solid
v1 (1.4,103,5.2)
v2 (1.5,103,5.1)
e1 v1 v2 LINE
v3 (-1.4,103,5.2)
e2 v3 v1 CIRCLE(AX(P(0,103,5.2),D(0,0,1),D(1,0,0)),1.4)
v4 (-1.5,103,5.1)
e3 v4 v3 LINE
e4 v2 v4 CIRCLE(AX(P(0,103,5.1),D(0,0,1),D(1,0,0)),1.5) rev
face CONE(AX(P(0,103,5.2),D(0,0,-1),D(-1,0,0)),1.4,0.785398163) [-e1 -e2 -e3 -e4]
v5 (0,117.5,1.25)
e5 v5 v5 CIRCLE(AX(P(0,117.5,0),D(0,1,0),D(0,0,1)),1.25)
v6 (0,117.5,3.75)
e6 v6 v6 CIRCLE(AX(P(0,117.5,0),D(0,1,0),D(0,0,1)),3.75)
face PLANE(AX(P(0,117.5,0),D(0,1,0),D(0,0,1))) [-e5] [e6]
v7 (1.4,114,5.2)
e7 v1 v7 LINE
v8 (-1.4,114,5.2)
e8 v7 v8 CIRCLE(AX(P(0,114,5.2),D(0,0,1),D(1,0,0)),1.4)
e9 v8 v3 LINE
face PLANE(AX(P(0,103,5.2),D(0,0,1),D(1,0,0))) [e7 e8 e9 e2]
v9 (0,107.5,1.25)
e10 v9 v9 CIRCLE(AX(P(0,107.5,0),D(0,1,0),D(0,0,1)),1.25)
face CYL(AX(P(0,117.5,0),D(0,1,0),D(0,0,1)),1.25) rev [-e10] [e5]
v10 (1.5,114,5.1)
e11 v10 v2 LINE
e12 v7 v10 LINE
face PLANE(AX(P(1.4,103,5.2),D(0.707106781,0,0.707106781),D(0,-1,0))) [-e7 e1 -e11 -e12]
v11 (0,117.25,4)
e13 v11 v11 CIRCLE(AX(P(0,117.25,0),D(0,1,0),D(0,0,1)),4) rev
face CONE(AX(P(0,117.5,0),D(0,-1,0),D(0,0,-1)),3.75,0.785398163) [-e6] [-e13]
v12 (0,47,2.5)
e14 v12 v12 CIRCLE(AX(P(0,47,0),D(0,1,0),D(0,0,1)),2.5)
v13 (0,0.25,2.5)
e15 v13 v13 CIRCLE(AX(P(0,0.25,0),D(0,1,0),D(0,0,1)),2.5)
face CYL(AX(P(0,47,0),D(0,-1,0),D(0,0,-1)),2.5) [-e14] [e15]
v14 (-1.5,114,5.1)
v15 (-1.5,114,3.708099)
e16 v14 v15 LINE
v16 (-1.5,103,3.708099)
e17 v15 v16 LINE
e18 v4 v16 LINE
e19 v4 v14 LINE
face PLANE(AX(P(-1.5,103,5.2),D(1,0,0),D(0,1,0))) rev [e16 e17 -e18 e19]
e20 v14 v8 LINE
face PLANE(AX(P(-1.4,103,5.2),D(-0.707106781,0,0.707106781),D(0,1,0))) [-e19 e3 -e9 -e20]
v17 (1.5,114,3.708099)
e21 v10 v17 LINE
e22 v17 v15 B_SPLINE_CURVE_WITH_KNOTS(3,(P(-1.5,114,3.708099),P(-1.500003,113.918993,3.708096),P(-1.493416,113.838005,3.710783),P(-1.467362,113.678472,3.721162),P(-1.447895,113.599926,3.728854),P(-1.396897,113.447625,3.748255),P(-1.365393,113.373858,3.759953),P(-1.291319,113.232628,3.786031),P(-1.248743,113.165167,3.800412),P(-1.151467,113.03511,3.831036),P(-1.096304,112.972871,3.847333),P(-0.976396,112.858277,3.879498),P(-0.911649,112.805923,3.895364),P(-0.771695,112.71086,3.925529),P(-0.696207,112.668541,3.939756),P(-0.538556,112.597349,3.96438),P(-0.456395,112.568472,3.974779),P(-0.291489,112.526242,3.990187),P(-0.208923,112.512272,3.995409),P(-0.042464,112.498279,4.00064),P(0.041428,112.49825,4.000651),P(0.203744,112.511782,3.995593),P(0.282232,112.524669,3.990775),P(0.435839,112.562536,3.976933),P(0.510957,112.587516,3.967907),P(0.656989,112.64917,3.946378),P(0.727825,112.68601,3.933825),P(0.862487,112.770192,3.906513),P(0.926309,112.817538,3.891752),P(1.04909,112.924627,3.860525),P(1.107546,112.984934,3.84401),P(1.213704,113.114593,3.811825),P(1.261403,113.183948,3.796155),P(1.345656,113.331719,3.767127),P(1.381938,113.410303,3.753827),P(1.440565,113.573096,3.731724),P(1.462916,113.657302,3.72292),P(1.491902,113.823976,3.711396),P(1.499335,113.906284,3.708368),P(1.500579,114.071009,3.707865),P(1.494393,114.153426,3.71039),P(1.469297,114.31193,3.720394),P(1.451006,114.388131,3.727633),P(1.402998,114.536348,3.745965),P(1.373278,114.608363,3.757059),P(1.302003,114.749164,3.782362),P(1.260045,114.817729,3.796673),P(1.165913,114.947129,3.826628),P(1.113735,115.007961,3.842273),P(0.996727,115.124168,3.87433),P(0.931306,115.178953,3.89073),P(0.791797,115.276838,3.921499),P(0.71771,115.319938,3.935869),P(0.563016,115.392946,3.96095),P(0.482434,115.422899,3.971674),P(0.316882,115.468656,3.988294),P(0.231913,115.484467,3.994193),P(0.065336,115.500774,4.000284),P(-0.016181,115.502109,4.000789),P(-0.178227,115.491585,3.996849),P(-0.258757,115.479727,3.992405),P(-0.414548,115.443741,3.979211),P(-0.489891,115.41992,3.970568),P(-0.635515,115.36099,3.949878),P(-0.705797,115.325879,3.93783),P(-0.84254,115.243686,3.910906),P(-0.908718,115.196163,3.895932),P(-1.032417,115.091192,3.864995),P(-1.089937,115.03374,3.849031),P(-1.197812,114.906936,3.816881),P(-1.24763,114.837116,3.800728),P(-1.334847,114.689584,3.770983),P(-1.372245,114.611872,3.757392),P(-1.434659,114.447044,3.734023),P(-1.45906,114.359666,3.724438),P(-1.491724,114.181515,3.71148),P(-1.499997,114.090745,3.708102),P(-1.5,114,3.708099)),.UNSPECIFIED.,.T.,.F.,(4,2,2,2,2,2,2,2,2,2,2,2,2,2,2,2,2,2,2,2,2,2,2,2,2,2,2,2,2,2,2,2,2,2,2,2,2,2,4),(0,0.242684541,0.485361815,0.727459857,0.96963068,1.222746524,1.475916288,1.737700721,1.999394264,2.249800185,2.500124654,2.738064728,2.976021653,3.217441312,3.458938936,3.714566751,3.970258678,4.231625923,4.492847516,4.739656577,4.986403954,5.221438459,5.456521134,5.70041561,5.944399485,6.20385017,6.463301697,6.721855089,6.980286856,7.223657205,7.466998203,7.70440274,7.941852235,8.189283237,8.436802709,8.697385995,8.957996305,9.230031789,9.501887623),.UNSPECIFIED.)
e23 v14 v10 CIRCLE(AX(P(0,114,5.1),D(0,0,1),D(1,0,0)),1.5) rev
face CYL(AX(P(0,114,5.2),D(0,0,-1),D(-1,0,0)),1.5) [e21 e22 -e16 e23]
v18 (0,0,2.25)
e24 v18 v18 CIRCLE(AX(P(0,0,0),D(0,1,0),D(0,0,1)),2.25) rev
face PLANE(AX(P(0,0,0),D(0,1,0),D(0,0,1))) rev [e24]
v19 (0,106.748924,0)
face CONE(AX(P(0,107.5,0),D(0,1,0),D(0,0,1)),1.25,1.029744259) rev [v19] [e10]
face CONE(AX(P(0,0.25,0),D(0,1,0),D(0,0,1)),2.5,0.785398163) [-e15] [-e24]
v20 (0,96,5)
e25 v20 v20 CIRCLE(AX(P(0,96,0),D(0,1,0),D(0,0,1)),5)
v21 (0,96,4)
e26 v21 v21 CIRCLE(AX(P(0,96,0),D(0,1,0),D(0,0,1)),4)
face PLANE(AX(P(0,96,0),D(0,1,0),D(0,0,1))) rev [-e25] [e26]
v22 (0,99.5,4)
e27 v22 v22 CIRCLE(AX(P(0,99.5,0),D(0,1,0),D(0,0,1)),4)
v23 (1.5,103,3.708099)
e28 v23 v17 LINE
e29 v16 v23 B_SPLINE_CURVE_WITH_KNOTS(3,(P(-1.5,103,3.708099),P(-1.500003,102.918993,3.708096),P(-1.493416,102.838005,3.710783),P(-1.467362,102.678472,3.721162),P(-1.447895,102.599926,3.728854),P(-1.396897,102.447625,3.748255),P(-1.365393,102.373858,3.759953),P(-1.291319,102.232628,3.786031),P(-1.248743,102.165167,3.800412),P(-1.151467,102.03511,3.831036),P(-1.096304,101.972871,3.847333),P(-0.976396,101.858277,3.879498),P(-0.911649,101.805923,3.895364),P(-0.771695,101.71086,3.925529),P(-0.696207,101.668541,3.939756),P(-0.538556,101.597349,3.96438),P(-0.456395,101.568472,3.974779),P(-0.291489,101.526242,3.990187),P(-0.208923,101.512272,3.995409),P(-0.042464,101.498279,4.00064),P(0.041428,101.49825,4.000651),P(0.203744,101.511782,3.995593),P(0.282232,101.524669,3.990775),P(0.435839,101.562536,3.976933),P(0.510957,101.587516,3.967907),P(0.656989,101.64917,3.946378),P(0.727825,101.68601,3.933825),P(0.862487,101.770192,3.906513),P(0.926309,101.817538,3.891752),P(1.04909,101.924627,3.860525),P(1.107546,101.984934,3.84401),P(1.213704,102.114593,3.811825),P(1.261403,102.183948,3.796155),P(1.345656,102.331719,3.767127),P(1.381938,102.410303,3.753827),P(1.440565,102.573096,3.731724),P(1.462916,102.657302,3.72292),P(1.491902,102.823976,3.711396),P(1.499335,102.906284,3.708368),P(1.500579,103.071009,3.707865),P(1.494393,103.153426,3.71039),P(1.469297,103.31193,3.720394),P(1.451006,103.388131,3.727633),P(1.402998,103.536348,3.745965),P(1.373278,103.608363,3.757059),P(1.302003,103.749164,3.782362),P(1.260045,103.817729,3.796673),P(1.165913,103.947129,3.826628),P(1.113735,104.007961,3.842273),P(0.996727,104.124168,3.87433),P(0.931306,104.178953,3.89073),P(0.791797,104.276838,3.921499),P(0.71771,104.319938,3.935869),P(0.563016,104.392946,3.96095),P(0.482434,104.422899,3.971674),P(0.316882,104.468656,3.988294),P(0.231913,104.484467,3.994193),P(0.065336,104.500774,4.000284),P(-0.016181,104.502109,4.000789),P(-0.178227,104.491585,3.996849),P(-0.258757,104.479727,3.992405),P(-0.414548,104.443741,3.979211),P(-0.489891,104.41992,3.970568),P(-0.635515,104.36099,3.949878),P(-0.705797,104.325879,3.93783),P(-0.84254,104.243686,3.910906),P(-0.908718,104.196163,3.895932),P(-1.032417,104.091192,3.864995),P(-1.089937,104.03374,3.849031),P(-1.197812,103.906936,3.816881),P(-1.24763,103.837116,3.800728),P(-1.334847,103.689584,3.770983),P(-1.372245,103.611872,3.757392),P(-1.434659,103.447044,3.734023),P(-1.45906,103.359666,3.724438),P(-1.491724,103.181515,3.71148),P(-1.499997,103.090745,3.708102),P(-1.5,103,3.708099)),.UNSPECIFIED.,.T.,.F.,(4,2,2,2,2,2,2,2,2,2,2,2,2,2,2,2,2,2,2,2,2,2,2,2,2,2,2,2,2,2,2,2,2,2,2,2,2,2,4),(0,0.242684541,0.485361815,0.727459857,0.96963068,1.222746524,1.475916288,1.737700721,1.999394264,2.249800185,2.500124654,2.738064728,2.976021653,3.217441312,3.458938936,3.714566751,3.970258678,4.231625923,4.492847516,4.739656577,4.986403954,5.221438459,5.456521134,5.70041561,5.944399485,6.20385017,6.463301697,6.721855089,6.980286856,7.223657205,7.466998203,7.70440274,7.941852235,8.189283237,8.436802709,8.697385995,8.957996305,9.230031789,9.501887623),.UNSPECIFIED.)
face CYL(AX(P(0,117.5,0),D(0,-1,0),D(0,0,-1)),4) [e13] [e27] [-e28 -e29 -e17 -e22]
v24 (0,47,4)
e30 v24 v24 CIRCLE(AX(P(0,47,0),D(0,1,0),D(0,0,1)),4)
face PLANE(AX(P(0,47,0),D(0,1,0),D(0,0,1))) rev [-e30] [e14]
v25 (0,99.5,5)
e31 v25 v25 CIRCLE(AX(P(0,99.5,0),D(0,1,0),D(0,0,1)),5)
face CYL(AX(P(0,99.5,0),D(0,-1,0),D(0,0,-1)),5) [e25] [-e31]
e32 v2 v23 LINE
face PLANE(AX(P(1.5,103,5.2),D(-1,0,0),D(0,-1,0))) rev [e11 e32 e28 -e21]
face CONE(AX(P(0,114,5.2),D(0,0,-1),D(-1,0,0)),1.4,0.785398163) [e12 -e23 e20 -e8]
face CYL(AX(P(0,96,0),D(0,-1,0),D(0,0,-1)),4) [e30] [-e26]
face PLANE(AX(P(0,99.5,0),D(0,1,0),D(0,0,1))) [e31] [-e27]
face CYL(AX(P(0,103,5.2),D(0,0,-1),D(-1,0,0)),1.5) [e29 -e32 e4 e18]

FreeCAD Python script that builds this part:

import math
import FreeCAD as App
import Part
import Sketcher
Q = App.Units.Quantity


def edges_at(feature, points):
    """Names of the edges that pass closest to the given points."""
    edges = feature.Shape.Edges
    near = lambda p: min(range(len(edges)), key=lambda i: edges[i].distToShape(Part.Vertex(*p))[0])
    return sorted({f"Edge{near(p) + 1}" for p in points})


def add_polygon(sketch, points):
    """Adds a closed chain of lines whose ends are joined by coincident constraints."""
    first, n = sketch.GeometryCount, len(points)
    for a, b in zip(points, points[1:] + points[:1]):
        sketch.addGeometry(Part.LineSegment(App.Vector(*a, 0), App.Vector(*b, 0)), False)
    for i in range(n):
        sketch.addConstraint(Sketcher.Constraint("Coincident", first + i, 2, first + (i + 1) % n, 1))

doc = App.newDocument("Part")
body = doc.addObject("PartDesign::Body", "Body")

sketch1 = doc.addObject("Sketcher::SketchObject", "Sketch")
body.addObject(sketch1)
sketch1.AttachmentSupport = (doc.XZ_Plane, [""])
sketch1.MapMode = "FlatFace"
sketch1.addGeometry(Part.Circle(App.Vector(0, 0, 0), App.Vector(0, 0, 1), 2.5), False)
sketch1.addConstraint(Sketcher.Constraint("Coincident", 0, 3, -1, 1))
sketch1.addConstraint(Sketcher.Constraint("Diameter", 0, Q("5 mm")))
pad1 = doc.addObject("PartDesign::Pad", "Pad")
body.addObject(pad1)
pad1.Profile = sketch1
pad1.Length = 47
pad1.Reversed = True

sketch2 = doc.addObject("Sketcher::SketchObject", "Sketch001")
body.addObject(sketch2)
sketch2.AttachmentSupport = (doc.XZ_Plane, [""])
sketch2.MapMode = "FlatFace"
sketch2.AttachmentOffset = App.Placement(App.Vector(0, 0, -47), App.Rotation())
sketch2.addGeometry(Part.Circle(App.Vector(0, 0, 0), App.Vector(0, 0, 1), 4), False)
sketch2.addConstraint(Sketcher.Constraint("Coincident", 0, 3, -1, 1))
sketch2.addConstraint(Sketcher.Constraint("Diameter", 0, Q("8 mm")))
pad2 = doc.addObject("PartDesign::Pad", "Pad001")
body.addObject(pad2)
pad2.Profile = sketch2
pad2.Length = 49
pad2.Reversed = True

sketch3 = doc.addObject("Sketcher::SketchObject", "Sketch002")
body.addObject(sketch3)
sketch3.AttachmentSupport = (doc.XZ_Plane, [""])
sketch3.MapMode = "FlatFace"
sketch3.AttachmentOffset = App.Placement(App.Vector(0, 0, -96), App.Rotation())
sketch3.addGeometry(Part.Circle(App.Vector(0, 0, 0), App.Vector(0, 0, 1), 5), False)
sketch3.addConstraint(Sketcher.Constraint("Coincident", 0, 3, -1, 1))
sketch3.addConstraint(Sketcher.Constraint("Diameter", 0, Q("10 mm")))
pad3 = doc.addObject("PartDesign::Pad", "Pad002")
body.addObject(pad3)
pad3.Profile = sketch3
pad3.Length = 3.5
pad3.Reversed = True

sketch4 = doc.addObject("Sketcher::SketchObject", "Sketch003")
body.addObject(sketch4)
sketch4.AttachmentSupport = (doc.XZ_Plane, [""])
sketch4.MapMode = "FlatFace"
sketch4.AttachmentOffset = App.Placement(App.Vector(0, 0, -99.5), App.Rotation())
sketch4.addGeometry(Part.Circle(App.Vector(0, 0, 0), App.Vector(0, 0, 1), 4), False)
sketch4.addConstraint(Sketcher.Constraint("Coincident", 0, 3, -1, 1))
sketch4.addConstraint(Sketcher.Constraint("Diameter", 0, Q("8 mm")))
pad4 = doc.addObject("PartDesign::Pad", "Pad003")
body.addObject(pad4)
pad4.Profile = sketch4
pad4.Length = 18
pad4.Reversed = True

sketch5 = doc.addObject("Sketcher::SketchObject", "Sketch004")
body.addObject(sketch5)
sketch5.AttachmentSupport = (doc.YZ_Plane, [""])
sketch5.MapMode = "FlatFace"
add_polygon(sketch5, [(106.7, 0), (117.5, 0), (117.5, 1.2), (107.5, 1.2)])
sketch5.addConstraint(Sketcher.Constraint("Horizontal", 0))
sketch5.addConstraint(Sketcher.Constraint("Vertical", 1))
sketch5.addConstraint(Sketcher.Constraint("Horizontal", 2))
sketch5.addConstraint(Sketcher.Constraint("PointOnObject", 0, 2, -1))
sketch5.addConstraint(Sketcher.Constraint("DistanceX", 2, 2, 2, 1, Q("10 mm")))
sketch5.addConstraint(Sketcher.Constraint("Angle", 3, Q("-121 deg")))
sketch5.addConstraint(Sketcher.Constraint("DistanceY", 1, 1, 1, 2, Q("1.25 mm")))
sketch5.addConstraint(Sketcher.Constraint("DistanceX", -1, 1, 0, 2, Q("117.5 mm")))
groove = doc.addObject("PartDesign::Groove", "Groove")
body.addObject(groove)
groove.Profile = sketch5
groove.ReferenceAxis = (sketch5, ["H_Axis"])
groove.Angle = 360

sketch6 = doc.addObject("Sketcher::SketchObject", "Sketch005")
body.addObject(sketch6)
sketch6.AttachmentSupport = (doc.XY_Plane, [""])
sketch6.MapMode = "FlatFace"
sketch6.AttachmentOffset = App.Placement(App.Vector(0, 0, 2.2), App.Rotation())
sketch6.addGeometry(Part.LineSegment(App.Vector(-1.5, 114, 0), App.Vector(-1.5, 103, 0)), False)
sketch6.addGeometry(Part.ArcOfCircle(Part.Circle(App.Vector(0, 103, 0), App.Vector(0, 0, 1), 1.5), math.radians(180), math.radians(360)), False)
sketch6.addGeometry(Part.LineSegment(App.Vector(1.5, 103, 0), App.Vector(1.5, 114, 0)), False)
sketch6.addGeometry(Part.ArcOfCircle(Part.Circle(App.Vector(0, 114, 0), App.Vector(0, 0, 1), 1.5), math.radians(0), math.radians(180)), False)
sketch6.addConstraint(Sketcher.Constraint("Tangent", 0, 2, 1, 1))
sketch6.addConstraint(Sketcher.Constraint("Tangent", 1, 2, 2, 1))
sketch6.addConstraint(Sketcher.Constraint("Tangent", 2, 2, 3, 1))
sketch6.addConstraint(Sketcher.Constraint("Tangent", 3, 2, 0, 1))
sketch6.addConstraint(Sketcher.Constraint("Vertical", 0))
sketch6.addConstraint(Sketcher.Constraint("Vertical", 2))
sketch6.addConstraint(Sketcher.Constraint("PointOnObject", 1, 3, -2))
sketch6.addConstraint(Sketcher.Constraint("Radius", 1, Q("1.5 mm")))
sketch6.addConstraint(Sketcher.Constraint("DistanceY", 0, 2, 0, 1, Q("11 mm")))
sketch6.addConstraint(Sketcher.Constraint("DistanceY", -1, 1, 1, 3, Q("103 mm")))
pad5 = doc.addObject("PartDesign::Pad", "Pad004")
body.addObject(pad5)
pad5.Profile = sketch6
pad5.Length = 3
doc.recompute()

chamfer = doc.addObject("PartDesign::Chamfer", "Chamfer")
body.addObject(chamfer)
chamfer.Base = (pad5, edges_at(pad5, [(0, 117.5, -4), (0, 0, -2.5)]))
chamfer.Size = 0.25
doc.recompute()

chamfer2 = doc.addObject("PartDesign::Chamfer", "Chamfer001")
body.addObject(chamfer2)
chamfer2.Base = (chamfer, edges_at(chamfer, [
    (0, 101.5, 5.2),
    (1.5, 108.5, 5.2),
    (0, 115.5, 5.2),
    (-1.5, 108.5, 5.2),
]))
chamfer2.Size = 0.1

doc.recompute()
